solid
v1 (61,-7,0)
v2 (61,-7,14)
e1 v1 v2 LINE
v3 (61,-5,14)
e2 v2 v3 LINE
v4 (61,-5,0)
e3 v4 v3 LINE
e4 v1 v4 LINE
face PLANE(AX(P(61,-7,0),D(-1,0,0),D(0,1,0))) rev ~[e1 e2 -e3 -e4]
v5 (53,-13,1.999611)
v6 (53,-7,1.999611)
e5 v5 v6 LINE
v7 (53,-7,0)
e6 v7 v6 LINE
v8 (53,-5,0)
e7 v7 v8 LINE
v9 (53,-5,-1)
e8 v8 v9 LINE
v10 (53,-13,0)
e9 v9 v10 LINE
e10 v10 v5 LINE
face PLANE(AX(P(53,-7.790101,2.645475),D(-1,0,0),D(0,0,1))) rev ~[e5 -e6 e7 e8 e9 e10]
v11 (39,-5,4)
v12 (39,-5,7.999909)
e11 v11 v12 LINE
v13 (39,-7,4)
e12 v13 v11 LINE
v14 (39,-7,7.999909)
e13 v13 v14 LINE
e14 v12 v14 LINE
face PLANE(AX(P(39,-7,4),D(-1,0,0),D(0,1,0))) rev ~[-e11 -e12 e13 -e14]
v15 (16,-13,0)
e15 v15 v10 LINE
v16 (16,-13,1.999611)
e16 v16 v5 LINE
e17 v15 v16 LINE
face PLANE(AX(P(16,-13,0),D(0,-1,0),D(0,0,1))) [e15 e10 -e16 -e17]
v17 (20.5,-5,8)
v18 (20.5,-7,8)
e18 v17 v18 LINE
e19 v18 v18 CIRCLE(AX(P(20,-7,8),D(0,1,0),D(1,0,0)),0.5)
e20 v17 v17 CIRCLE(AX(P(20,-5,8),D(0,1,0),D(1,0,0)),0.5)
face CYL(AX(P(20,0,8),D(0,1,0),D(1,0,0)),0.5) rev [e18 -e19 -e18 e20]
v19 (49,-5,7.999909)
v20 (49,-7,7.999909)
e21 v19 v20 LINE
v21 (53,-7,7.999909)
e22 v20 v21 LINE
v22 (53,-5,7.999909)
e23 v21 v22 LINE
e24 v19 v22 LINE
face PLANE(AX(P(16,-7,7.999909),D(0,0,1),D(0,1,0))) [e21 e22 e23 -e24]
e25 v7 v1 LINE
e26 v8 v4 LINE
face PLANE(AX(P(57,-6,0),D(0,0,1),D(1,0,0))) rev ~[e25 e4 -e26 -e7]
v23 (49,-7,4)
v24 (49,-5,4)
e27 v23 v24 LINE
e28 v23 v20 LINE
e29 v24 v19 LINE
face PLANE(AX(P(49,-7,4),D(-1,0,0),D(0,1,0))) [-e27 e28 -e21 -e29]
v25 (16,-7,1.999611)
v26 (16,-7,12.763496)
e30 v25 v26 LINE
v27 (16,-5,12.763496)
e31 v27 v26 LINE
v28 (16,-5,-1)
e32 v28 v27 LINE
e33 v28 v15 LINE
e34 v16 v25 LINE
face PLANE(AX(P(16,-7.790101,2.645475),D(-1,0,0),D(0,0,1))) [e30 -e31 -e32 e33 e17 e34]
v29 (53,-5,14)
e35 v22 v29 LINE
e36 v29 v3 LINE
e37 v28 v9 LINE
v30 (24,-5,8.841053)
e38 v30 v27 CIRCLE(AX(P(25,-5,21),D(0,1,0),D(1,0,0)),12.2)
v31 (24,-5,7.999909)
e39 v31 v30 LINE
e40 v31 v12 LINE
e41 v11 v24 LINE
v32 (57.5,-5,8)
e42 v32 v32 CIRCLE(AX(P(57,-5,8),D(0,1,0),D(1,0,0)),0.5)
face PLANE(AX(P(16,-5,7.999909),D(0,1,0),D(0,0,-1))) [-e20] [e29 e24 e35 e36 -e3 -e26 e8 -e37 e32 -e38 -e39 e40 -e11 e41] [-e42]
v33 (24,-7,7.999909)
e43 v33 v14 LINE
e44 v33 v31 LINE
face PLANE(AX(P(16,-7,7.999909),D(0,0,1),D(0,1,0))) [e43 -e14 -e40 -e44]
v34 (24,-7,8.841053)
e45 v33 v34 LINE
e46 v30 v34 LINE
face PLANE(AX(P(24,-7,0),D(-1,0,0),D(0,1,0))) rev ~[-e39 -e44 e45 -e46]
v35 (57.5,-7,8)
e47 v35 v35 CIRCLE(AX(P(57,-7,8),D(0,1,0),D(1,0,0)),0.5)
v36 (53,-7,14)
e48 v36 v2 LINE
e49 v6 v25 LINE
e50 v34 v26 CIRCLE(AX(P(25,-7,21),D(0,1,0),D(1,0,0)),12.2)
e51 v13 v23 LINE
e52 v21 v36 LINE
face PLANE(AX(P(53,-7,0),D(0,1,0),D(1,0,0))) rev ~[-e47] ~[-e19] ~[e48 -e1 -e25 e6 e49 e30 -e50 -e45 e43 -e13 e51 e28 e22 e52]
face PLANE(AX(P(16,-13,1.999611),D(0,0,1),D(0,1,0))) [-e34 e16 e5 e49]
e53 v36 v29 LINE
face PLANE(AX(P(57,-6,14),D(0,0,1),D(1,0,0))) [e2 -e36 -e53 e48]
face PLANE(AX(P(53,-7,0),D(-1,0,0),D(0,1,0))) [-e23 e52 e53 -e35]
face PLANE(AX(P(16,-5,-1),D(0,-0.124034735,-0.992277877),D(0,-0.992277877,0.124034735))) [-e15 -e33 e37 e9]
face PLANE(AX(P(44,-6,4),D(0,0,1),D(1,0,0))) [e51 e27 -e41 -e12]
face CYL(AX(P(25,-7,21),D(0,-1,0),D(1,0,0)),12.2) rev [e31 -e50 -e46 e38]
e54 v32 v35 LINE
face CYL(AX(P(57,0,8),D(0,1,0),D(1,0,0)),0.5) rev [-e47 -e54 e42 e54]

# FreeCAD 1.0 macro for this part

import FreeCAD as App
import Part
import Sketcher


def add_polygon(sketch, points):
    """Adds a closed chain of lines whose ends are joined by coincident constraints."""
    first, n = sketch.GeometryCount, len(points)
    for a, b in zip(points, points[1:] + points[:1]):
        sketch.addGeometry(Part.LineSegment(App.Vector(*a, 0), App.Vector(*b, 0)), False)
    for i in range(n):
        sketch.addConstraint(Sketcher.Constraint("Coincident", first + i, 2, first + (i + 1) % n, 1))

doc = App.newDocument("Part")
params = doc.addObject("Spreadsheet::Sheet", "Params")
for row, (alias, value) in enumerate([
    ("sketch1_diameter", "24.4 mm"),
    ("pad1_length", "2 mm"),
    ("sketch2_diameter", "1 mm"),
    ("pad2_length", "10 mm"),
    ("sketch3_diameter", "1 mm"),
    ("pad3_length", "10 mm"),
    ("sketch4_width", "8 mm"),
    ("sketch4_height", "2 mm"),
    ("pad4_length", "14 mm"),
    ("sketch5_width", "10 mm"),
    ("sketch5_height", "2 mm"),
    ("pad5_length", "4 mm"),
    ("sketch6_width", "6 mm"),
    ("sketch6_width2", "2 mm"),
    ("pad6_length", "37 mm"),
    ("sketch7_width", "8 mm"),
    ("sketch7_height", "2 mm"),
    ("pad7_length", "14 mm"),
], start=1):
    params.set(f"A{row}", alias)
    params.set(f"B{row}", "=" + value)
    params.setAlias(f"B{row}", alias)

body = doc.addObject("PartDesign::Body", "Body")

# Sketch on XZ plane
sketch1 = doc.addObject("Sketcher::SketchObject", "Sketch")
body.addObject(sketch1)
sketch1.AttachmentSupport = (doc.XZ_Plane, [""])
sketch1.MapMode = "FlatFace"
sketch1.AttachmentOffset = App.Placement(App.Vector(0, 0, 7), App.Rotation())
sketch1.addGeometry(Part.Circle(App.Vector(25, 21, 0), App.Vector(0, 0, 1), 12), False)
sketch1.addConstraint([
    Sketcher.Constraint("Diameter", 0, 24.4),
    Sketcher.Constraint("DistanceX", -1, 1, 0, 3, 25.0),
    Sketcher.Constraint("DistanceY", -1, 1, 0, 3, 21.0),
])
sketch1.setExpression("Constraints[0]", "Params.sketch1_diameter")
pad1 = doc.addObject("PartDesign::Pad", "Pad")
body.addObject(pad1)
pad1.Profile = sketch1
pad1.setExpression("Length", "Params.pad1_length")
pad1.Reversed = True
body2 = doc.addObject("PartDesign::Body", "Body001")

# Sketch on XZ plane
sketch2 = doc.addObject("Sketcher::SketchObject", "Sketch001")
body2.addObject(sketch2)
sketch2.AttachmentSupport = (doc.getObject("XZ_Plane001"), [""])
sketch2.MapMode = "FlatFace"
sketch2.addGeometry(Part.Circle(App.Vector(57, 8, 0), App.Vector(0, 0, 1), 0.5), False)
sketch2.addConstraint([
    Sketcher.Constraint("Diameter", 0, 1.0),
    Sketcher.Constraint("DistanceX", -1, 1, 0, 3, 57.0),
    Sketcher.Constraint("DistanceY", -1, 1, 0, 3, 8.0),
])
sketch2.setExpression("Constraints[0]", "Params.sketch2_diameter")
pad2 = doc.addObject("PartDesign::Pad", "Pad001")
body2.addObject(pad2)
pad2.Profile = sketch2
pad2.setExpression("Length", "Params.pad2_length")
body3 = doc.addObject("PartDesign::Body", "Body002")
body3.AllowCompound = True

# Sketch on XZ plane
sketch3 = doc.addObject("Sketcher::SketchObject", "Sketch002")
body3.addObject(sketch3)
sketch3.AttachmentSupport = (doc.getObject("XZ_Plane002"), [""])
sketch3.MapMode = "FlatFace"
sketch3.addGeometry(Part.Circle(App.Vector(20, 8, 0), App.Vector(0, 0, 1), 0.5), False)
sketch3.addConstraint([
    Sketcher.Constraint("Diameter", 0, 1.0),
    Sketcher.Constraint("DistanceX", -1, 1, 0, 3, 20.0),
    Sketcher.Constraint("DistanceY", -1, 1, 0, 3, 8.0),
])
sketch3.setExpression("Constraints[0]", "Params.sketch3_diameter")
pad3 = doc.addObject("PartDesign::Pad", "Pad002")
body3.addObject(pad3)
pad3.Profile = sketch3
pad3.setExpression("Length", "Params.pad3_length")
doc.recompute()

boolean = doc.addObject("PartDesign::Boolean", "Boolean")
body3.addObject(boolean)
boolean.Type = "Fuse"
boolean.addObjects([body2])
body4 = doc.addObject("PartDesign::Body", "Body003")

# Sketch on XY plane
sketch4 = doc.addObject("Sketcher::SketchObject", "Sketch003")
body4.addObject(sketch4)
sketch4.AttachmentSupport = (doc.getObject("XY_Plane003"), [""])
sketch4.MapMode = "FlatFace"
add_polygon(sketch4, [(16, -5), (16, -7), (24, -7), (24, -5)])  # lines 0-3
sketch4.addConstraint([
    Sketcher.Constraint("Vertical", 0),
    Sketcher.Constraint("Horizontal", 1),
    Sketcher.Constraint("Vertical", 2),
    Sketcher.Constraint("Horizontal", 3),
    Sketcher.Constraint("DistanceX", 1, 1, 1, 2, 8.0),
    Sketcher.Constraint("DistanceY", 0, 2, 0, 1, 2.0),
    Sketcher.Constraint("DistanceX", -1, 1, 0, 2, 16.0),
    Sketcher.Constraint("DistanceY", 0, 2, -1, 1, 7.0),
])
sketch4.setExpression("Constraints[8]", "Params.sketch4_width")
sketch4.setExpression("Constraints[9]", "Params.sketch4_height")
pad4 = doc.addObject("PartDesign::Pad", "Pad003")
body4.addObject(pad4)
pad4.Profile = sketch4
pad4.setExpression("Length", "Params.pad4_length")
body5 = doc.addObject("PartDesign::Body", "Body004")

# Sketch on XY plane
sketch5 = doc.addObject("Sketcher::SketchObject", "Sketch004")
body5.addObject(sketch5)
sketch5.AttachmentSupport = (doc.getObject("XY_Plane004"), [""])
sketch5.MapMode = "FlatFace"
sketch5.AttachmentOffset = App.Placement(App.Vector(0, 0, 4), App.Rotation())
add_polygon(sketch5, [(39, -5), (39, -7), (49, -7), (49, -5)])  # lines 0-3
sketch5.addConstraint([
    Sketcher.Constraint("Vertical", 0),
    Sketcher.Constraint("Horizontal", 1),
    Sketcher.Constraint("Vertical", 2),
    Sketcher.Constraint("Horizontal", 3),
    Sketcher.Constraint("DistanceX", 1, 1, 1, 2, 10.0),
    Sketcher.Constraint("DistanceY", 0, 2, 0, 1, 2.0),
    Sketcher.Constraint("DistanceX", -1, 1, 0, 2, 39.0),
    Sketcher.Constraint("DistanceY", 0, 2, -1, 1, 7.0),
])
sketch5.setExpression("Constraints[8]", "Params.sketch5_width")
sketch5.setExpression("Constraints[9]", "Params.sketch5_height")
pad5 = doc.addObject("PartDesign::Pad", "Pad004")
body5.addObject(pad5)
pad5.Profile = sketch5
pad5.setExpression("Length", "Params.pad5_length")
body6 = doc.addObject("PartDesign::Body", "Body005")

# Sketch on YZ plane
sketch6 = doc.addObject("Sketcher::SketchObject", "Sketch005")
body6.addObject(sketch6)
sketch6.AttachmentSupport = (doc.getObject("YZ_Plane005"), [""])
sketch6.MapMode = "FlatFace"
add_polygon(sketch6, [(-5, -1), (-13, 0), (-13, 2), (-7, 2), (-7, 8), (-5, 8)])  # lines 0-5
sketch6.addConstraint([
    Sketcher.Constraint("Vertical", 1),
    Sketcher.Constraint("Horizontal", 2),
    Sketcher.Constraint("Vertical", 3),
    Sketcher.Constraint("Horizontal", 4),
    Sketcher.Constraint("Vertical", 5),
    Sketcher.Constraint("PointOnObject", 0, 2, -1),
    Sketcher.Constraint("DistanceX", 2, 1, 2, 2, 6.0),
    Sketcher.Constraint("DistanceX", 4, 1, 4, 2, 2.0),
    Sketcher.Constraint("DistanceX", 0, 2, -1, 1, 13.0),
    Sketcher.Constraint("DistanceY", 5, 2, -1, 1, 1.0),
    Sketcher.Constraint("DistanceY", 1, 1, 1, 2, 1.999611),
    Sketcher.Constraint("DistanceY", 5, 2, 5, 1, 8.999909),
])
sketch6.setExpression("Constraints[12]", "Params.sketch6_width")
sketch6.setExpression("Constraints[13]", "Params.sketch6_width2")
pad6 = doc.addObject("PartDesign::Pad", "Pad005")
body6.addObject(pad6)
pad6.Profile = sketch6
pad6.setExpression("Length", "Params.pad6_length")
body7 = doc.addObject("PartDesign::Body", "Body006")
doc.recompute()

body6.Placement = App.Placement(App.Vector(16, 0, 0), App.Rotation(App.Vector(0, 0, 1), 0))
boolean2 = doc.addObject("PartDesign::Boolean", "Boolean001")
body7.addObject(boolean2)
boolean2.Type = "Fuse"
boolean2.addObjects([body6])
doc.recompute()

boolean3 = doc.addObject("PartDesign::Boolean", "Boolean002")
body7.addObject(boolean3)
boolean3.Type = "Cut"
boolean3.addObjects([body5])
body8 = doc.addObject("PartDesign::Body", "Body007")
body8.AllowCompound = True

# Sketch on XY plane
sketch7 = doc.addObject("Sketcher::SketchObject", "Sketch006")
body8.addObject(sketch7)
sketch7.AttachmentSupport = (doc.getObject("XY_Plane007"), [""])
sketch7.MapMode = "FlatFace"
add_polygon(sketch7, [(53, -5), (53, -7), (61, -7), (61, -5)])  # lines 0-3
sketch7.addConstraint([
    Sketcher.Constraint("Vertical", 0),
    Sketcher.Constraint("Horizontal", 1),
    Sketcher.Constraint("Vertical", 2),
    Sketcher.Constraint("Horizontal", 3),
    Sketcher.Constraint("DistanceX", 1, 1, 1, 2, 8.0),
    Sketcher.Constraint("DistanceY", 0, 2, 0, 1, 2.0),
    Sketcher.Constraint("DistanceX", -1, 1, 0, 2, 53.0),
    Sketcher.Constraint("DistanceY", 0, 2, -1, 1, 7.0),
])
sketch7.setExpression("Constraints[8]", "Params.sketch7_width")
sketch7.setExpression("Constraints[9]", "Params.sketch7_height")
pad7 = doc.addObject("PartDesign::Pad", "Pad006")
body8.addObject(pad7)
pad7.Profile = sketch7
pad7.setExpression("Length", "Params.pad7_length")
doc.recompute()

boolean4 = doc.addObject("PartDesign::Boolean", "Boolean003")
body8.addObject(boolean4)
boolean4.Type = "Fuse"
boolean4.addObjects([body4])
doc.recompute()

boolean5 = doc.addObject("PartDesign::Boolean", "Boolean004")
body8.addObject(boolean5)
boolean5.Type = "Fuse"
boolean5.addObjects([body7])
doc.recompute()

boolean6 = doc.addObject("PartDesign::Boolean", "Boolean005")
body8.addObject(boolean6)
boolean6.Type = "Cut"
boolean6.addObjects([body3])
doc.recompute()

boolean7 = doc.addObject("PartDesign::Boolean", "Boolean006")
body8.addObject(boolean7)
boolean7.Type = "Cut"
boolean7.addObjects([body])

doc.recompute()
